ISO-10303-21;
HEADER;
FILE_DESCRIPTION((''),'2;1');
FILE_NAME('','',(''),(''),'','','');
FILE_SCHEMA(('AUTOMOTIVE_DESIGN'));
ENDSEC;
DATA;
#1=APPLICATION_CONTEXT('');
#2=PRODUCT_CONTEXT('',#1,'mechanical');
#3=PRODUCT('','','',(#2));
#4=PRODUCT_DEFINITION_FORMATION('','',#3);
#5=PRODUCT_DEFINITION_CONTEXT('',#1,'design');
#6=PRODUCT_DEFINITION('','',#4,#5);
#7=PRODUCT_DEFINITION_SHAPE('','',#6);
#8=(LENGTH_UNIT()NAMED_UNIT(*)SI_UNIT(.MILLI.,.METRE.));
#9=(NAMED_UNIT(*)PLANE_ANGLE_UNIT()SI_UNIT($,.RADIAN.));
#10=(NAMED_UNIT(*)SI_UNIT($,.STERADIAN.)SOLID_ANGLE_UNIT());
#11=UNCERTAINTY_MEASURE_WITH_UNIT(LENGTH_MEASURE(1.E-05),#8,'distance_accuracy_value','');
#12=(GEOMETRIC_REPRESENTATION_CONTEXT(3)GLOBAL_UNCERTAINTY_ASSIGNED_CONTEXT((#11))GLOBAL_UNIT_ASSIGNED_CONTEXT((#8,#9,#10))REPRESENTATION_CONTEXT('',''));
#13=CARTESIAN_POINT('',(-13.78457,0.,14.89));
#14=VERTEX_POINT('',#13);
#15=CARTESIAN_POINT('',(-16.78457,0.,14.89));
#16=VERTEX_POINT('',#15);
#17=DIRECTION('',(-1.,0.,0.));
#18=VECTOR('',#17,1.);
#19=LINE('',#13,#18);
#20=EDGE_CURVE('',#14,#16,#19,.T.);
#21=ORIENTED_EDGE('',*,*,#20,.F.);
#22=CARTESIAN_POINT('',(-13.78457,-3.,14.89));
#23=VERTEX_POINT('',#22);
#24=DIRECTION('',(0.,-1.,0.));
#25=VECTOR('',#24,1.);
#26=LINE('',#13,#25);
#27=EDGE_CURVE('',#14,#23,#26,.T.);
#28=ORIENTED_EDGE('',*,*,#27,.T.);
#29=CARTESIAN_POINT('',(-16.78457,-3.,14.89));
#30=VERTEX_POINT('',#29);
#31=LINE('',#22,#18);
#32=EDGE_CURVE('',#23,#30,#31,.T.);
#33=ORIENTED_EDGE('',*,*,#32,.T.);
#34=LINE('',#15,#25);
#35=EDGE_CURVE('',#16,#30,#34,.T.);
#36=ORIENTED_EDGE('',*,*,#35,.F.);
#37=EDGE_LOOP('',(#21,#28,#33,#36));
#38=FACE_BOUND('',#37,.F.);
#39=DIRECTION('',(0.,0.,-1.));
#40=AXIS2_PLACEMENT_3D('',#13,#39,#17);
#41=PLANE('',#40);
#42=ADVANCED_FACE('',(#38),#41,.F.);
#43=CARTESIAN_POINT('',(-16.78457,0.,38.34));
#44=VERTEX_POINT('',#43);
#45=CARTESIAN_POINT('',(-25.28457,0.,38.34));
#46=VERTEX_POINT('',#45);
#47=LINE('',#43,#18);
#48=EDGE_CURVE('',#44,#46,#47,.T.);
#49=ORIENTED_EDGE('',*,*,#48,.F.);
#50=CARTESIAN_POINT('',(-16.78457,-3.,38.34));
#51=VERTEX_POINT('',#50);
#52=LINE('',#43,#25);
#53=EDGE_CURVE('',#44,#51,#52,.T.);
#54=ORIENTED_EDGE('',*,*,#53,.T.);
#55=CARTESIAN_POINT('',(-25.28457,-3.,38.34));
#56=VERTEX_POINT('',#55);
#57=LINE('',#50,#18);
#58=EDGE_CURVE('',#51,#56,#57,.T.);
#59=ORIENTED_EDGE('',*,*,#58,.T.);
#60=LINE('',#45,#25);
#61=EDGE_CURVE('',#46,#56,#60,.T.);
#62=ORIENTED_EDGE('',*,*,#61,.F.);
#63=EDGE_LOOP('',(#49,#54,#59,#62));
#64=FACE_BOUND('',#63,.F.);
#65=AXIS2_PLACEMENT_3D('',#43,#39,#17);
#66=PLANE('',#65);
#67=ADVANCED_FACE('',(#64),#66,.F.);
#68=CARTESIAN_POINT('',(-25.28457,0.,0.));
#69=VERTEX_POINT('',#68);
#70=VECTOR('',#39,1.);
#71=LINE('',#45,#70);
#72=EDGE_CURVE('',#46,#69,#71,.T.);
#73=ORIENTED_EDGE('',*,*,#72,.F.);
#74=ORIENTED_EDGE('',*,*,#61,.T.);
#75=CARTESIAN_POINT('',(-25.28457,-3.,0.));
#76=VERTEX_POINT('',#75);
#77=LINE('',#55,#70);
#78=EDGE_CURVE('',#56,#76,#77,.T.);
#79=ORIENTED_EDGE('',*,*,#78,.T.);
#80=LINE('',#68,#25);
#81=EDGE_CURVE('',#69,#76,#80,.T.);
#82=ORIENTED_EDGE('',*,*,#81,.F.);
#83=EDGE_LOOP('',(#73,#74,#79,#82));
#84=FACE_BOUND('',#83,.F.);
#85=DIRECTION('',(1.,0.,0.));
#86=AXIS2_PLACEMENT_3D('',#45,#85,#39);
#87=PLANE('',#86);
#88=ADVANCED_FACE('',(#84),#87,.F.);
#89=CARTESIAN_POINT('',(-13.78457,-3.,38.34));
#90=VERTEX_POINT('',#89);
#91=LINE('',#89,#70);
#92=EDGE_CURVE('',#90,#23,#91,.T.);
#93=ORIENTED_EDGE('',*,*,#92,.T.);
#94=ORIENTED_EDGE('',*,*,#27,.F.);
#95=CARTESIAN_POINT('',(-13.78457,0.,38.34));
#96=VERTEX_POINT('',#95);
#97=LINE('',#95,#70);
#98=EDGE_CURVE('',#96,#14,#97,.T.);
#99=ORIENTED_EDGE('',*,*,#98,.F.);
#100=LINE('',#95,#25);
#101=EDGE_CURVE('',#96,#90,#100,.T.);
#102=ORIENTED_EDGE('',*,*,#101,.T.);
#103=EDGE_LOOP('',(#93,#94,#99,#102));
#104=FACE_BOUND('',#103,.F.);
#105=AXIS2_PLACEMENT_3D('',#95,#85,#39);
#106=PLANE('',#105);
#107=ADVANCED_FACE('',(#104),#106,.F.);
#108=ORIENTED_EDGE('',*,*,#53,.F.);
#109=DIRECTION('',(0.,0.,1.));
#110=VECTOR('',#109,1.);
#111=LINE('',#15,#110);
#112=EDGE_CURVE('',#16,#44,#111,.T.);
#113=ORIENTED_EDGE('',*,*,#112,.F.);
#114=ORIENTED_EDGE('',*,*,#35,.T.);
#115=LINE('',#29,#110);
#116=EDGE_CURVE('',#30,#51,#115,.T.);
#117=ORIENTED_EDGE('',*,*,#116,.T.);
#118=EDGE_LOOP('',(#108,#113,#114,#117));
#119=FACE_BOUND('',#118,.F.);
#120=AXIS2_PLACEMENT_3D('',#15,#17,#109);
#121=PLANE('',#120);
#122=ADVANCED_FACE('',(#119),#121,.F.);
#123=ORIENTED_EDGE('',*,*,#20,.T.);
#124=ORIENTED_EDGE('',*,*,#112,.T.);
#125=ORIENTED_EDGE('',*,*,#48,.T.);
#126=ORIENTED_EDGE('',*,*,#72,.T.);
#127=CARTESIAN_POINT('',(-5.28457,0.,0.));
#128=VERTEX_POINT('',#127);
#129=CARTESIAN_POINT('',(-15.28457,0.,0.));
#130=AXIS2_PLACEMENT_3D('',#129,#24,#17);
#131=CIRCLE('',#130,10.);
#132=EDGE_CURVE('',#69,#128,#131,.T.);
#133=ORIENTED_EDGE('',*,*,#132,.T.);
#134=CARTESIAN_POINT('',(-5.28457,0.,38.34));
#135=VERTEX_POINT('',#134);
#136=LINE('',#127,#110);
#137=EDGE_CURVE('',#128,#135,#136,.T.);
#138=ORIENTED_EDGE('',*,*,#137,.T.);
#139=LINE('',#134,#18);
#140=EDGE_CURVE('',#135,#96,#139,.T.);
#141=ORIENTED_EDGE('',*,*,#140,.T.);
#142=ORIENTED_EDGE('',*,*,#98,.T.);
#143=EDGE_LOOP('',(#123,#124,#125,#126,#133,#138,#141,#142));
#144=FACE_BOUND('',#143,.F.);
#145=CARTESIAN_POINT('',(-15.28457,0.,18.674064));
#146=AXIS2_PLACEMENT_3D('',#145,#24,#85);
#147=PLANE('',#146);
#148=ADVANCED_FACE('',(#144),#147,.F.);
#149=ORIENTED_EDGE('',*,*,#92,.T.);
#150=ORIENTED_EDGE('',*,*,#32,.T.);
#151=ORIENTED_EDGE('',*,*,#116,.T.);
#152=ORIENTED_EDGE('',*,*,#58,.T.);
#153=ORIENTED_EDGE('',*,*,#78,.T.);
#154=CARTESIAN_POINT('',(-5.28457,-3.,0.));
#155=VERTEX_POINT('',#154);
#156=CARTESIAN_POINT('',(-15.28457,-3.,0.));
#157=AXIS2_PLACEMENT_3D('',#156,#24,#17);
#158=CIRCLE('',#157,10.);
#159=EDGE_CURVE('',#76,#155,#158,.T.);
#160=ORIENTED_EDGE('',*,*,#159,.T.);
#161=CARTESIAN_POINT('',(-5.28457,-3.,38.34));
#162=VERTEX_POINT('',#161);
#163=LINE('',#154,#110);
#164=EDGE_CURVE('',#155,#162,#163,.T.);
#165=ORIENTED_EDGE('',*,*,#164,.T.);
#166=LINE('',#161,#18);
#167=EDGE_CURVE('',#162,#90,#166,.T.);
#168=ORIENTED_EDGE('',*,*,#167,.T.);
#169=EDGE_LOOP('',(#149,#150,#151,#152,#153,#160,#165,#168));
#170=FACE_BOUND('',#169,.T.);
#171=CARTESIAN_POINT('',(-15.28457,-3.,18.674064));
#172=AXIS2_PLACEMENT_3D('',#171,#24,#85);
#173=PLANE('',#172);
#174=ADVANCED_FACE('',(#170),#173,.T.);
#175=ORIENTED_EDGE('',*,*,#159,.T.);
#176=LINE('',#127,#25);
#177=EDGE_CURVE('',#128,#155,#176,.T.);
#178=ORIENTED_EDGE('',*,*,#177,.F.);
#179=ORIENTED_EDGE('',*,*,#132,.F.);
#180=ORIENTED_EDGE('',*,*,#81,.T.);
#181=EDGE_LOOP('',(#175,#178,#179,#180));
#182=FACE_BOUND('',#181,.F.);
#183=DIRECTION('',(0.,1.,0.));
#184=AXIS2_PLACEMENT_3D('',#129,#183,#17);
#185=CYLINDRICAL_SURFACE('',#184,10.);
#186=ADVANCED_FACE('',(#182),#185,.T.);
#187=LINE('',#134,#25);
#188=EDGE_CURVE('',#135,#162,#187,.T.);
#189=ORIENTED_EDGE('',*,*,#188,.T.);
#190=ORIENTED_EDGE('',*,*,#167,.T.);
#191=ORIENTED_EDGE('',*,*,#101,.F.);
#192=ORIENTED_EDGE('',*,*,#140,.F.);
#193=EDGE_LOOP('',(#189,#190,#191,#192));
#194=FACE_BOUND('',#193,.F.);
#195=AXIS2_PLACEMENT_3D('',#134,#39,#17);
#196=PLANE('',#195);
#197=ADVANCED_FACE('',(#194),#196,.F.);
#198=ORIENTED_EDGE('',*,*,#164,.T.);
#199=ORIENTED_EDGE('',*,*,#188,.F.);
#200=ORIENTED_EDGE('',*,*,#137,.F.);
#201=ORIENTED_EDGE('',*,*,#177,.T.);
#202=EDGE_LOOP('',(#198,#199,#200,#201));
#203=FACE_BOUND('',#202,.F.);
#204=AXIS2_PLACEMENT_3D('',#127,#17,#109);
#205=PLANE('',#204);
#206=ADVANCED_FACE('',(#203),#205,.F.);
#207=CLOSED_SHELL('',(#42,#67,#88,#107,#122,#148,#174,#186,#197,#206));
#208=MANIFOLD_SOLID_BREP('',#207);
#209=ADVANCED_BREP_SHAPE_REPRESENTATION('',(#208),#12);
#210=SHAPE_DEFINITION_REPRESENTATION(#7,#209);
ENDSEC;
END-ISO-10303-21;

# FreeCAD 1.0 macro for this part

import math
import FreeCAD as App
import Part
import Sketcher
from FreeCAD import Vector
Q = App.Units.Quantity

doc = App.newDocument("Part")
body = doc.addObject("PartDesign::Body", "Body")

# Sketch on XZ plane
sketch1 = body.newObject("Sketcher::SketchObject", "Sketch")
sketch1.AttachmentSupport = (doc.getObject("XZ_Plane"), [""])
sketch1.MapMode = "FlatFace"
sketch1.addGeometry([
    Part.LineSegment(Vector(-16.78457, 38.34, 0), Vector(-25.28457, 38.34, 0)),  # 0
    Part.LineSegment(Vector(-25.28457, 38.34, 0), Vector(-25.28457, 0, 0)),  # 1
    Part.ArcOfCircle(Part.Circle(Vector(-15.28457, 0, 0), Vector(0, 0, 1), 10), math.radians(180), math.radians(360)),  # 2
    Part.LineSegment(Vector(-5.28457, 0, 0), Vector(-5.28457, 38.34, 0)),  # 3
    Part.LineSegment(Vector(-5.28457, 38.34, 0), Vector(-13.78457, 38.34, 0)),  # 4
    Part.LineSegment(Vector(-13.78457, 38.34, 0), Vector(-13.78457, 14.89, 0)),  # 5
    Part.LineSegment(Vector(-13.78457, 14.89, 0), Vector(-16.78457, 14.89, 0)),  # 6
    Part.LineSegment(Vector(-16.78457, 14.89, 0), Vector(-16.78457, 38.34, 0)),  # 7
], False)
sketch1.addConstraint([
    Sketcher.Constraint("Coincident", 0, 2, 1, 1),
    Sketcher.Constraint("Tangent", 1, 2, 2, 1),
    Sketcher.Constraint("Tangent", 2, 2, 3, 1),
    Sketcher.Constraint("Coincident", 3, 2, 4, 1),
    Sketcher.Constraint("Coincident", 4, 2, 5, 1),
    Sketcher.Constraint("Coincident", 5, 2, 6, 1),
    Sketcher.Constraint("Coincident", 6, 2, 7, 1),
    Sketcher.Constraint("Coincident", 7, 2, 0, 1),
    Sketcher.Constraint("Horizontal", 0),
    Sketcher.Constraint("Vertical", 1),
    Sketcher.Constraint("Vertical", 3),
    Sketcher.Constraint("Horizontal", 4),
    Sketcher.Constraint("Vertical", 5),
    Sketcher.Constraint("Horizontal", 6),
    Sketcher.Constraint("Vertical", 7),
    Sketcher.Constraint("PointOnObject", 2, 3, -1),
    Sketcher.Constraint("Horizontal", 0, 2, 3, 2),
    Sketcher.Constraint("Equal", 0, 4),
    Sketcher.Constraint("Radius", 2, Q("10 mm")),
    Sketcher.Constraint("DistanceX", 6, 2, 6, 1, Q("3 mm")),
    Sketcher.Constraint("DistanceY", 1, 2, 1, 1, Q("38.34 mm")),
    Sketcher.Constraint("DistanceY", 5, 2, 5, 1, Q("23.45 mm")),
    Sketcher.Constraint("DistanceX", 2, 3, -1, 1, Q("15.28457 mm")),
])
pad1 = body.newObject("PartDesign::Pad", "Pad")
pad1.Profile = sketch1
pad1.Length = 3

doc.recompute()
